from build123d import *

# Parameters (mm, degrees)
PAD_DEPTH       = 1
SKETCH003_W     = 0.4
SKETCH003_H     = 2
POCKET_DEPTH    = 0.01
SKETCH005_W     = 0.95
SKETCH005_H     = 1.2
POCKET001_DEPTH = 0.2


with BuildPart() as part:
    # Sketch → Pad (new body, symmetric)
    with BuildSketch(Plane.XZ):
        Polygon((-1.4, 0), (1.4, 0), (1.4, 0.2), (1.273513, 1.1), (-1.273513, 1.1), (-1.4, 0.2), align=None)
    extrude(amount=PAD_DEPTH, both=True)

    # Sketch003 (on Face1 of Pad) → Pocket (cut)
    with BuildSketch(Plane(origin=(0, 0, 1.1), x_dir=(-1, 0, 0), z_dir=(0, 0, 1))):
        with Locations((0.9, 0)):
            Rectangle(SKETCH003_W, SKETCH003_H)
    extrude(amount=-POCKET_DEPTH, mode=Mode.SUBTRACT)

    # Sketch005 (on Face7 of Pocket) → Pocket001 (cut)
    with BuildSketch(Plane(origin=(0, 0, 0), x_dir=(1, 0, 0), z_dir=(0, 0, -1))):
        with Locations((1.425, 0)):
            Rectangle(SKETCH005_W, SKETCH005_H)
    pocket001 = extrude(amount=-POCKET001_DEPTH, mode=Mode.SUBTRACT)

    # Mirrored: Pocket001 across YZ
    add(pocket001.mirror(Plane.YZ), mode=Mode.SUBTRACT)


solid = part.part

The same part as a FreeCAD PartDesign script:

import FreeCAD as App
import Part
import Sketcher
Q = App.Units.Quantity


def add_polygon(sketch, points):
    """Adds a closed chain of lines whose ends are joined by coincident constraints."""
    first, n = sketch.GeometryCount, len(points)
    for a, b in zip(points, points[1:] + points[:1]):
        sketch.addGeometry(Part.LineSegment(App.Vector(*a, 0), App.Vector(*b, 0)), False)
    for i in range(n):
        sketch.addConstraint(Sketcher.Constraint("Coincident", first + i, 2, first + (i + 1) % n, 1))

doc = App.newDocument("Part")
params = doc.addObject("Spreadsheet::Sheet", "Params")
for row, (alias, value) in enumerate([
    ("sketch1_width", "2.8 mm"),
    ("sketch1_height", "0.2 mm"),
    ("pad1_length", "2 mm"),
    ("sketch2_height", "2 mm"),
    ("sketch2_width", "0.4 mm"),
    ("pocket1_length", "0.01 mm"),
    ("sketch3_height", "1.2 mm"),
    ("sketch3_width", "0.95 mm"),
    ("pocket2_length", "0.2 mm"),
], start=1):
    params.set(f"A{row}", alias)
    params.set(f"B{row}", "=" + value)
    params.setAlias(f"B{row}", alias)

body = doc.addObject("PartDesign::Body", "Body")

# Sketch on XZ plane
sketch1 = doc.addObject("Sketcher::SketchObject", "Sketch")
body.addObject(sketch1)
sketch1.AttachmentSupport = (doc.XZ_Plane, [""])
sketch1.MapMode = "FlatFace"
add_polygon(sketch1, [(-1.4, 0), (1.4, 0), (1.4, 0.2), (1.27, 1.1), (-1.27, 1.1), (-1.4, 0.2)])  # lines 0-5
sketch1.addConstraint([
    Sketcher.Constraint("Horizontal", 0),
    Sketcher.Constraint("Vertical", 1),
    Sketcher.Constraint("Horizontal", 3),
    Sketcher.Constraint("Vertical", 5),
    Sketcher.Constraint("Symmetric", 0, 2, 5, 2, -1, 1),
    Sketcher.Constraint("Horizontal", 1, 2, 4, 2),
    Sketcher.Constraint("Equal", 2, 4),
    Sketcher.Constraint("Angle", 2, Q("98.000016 deg")),
    Sketcher.Constraint("DistanceX", 0, 1, 0, 2, 2.8),
    Sketcher.Constraint("DistanceY", 1, 1, 1, 2, 0.2),
    Sketcher.Constraint("DistanceY", -1, 1, 2, 2, 1.1),
])
sketch1.setExpression("Constraints[14]", "Params.sketch1_width")
sketch1.setExpression("Constraints[15]", "Params.sketch1_height")
pad1 = doc.addObject("PartDesign::Pad", "Pad")
body.addObject(pad1)
pad1.Profile = sketch1
pad1.setExpression("Length", "Params.pad1_length")
pad1.Midplane = True

# Sketch on XY plane
sketch2 = doc.addObject("Sketcher::SketchObject", "Sketch001")
body.addObject(sketch2)
sketch2.AttachmentSupport = (doc.XY_Plane, [""])
sketch2.MapMode = "FlatFace"
sketch2.AttachmentOffset = App.Placement(App.Vector(0, 0, 1.1), App.Rotation())
add_polygon(sketch2, [(-0.7, -1), (-0.7, 1), (-1.1, 1), (-1.1, -1)])  # lines 0-3
sketch2.addConstraint([
    Sketcher.Constraint("Vertical", 0),
    Sketcher.Constraint("Horizontal", 1),
    Sketcher.Constraint("Vertical", 2),
    Sketcher.Constraint("Horizontal", 3),
    Sketcher.Constraint("DistanceY", 0, 1, 0, 2, 2.0),
    Sketcher.Constraint("DistanceX", 1, 2, 1, 1, 0.4),
    Sketcher.Constraint("DistanceY", -1, 1, 0, 2, 1.0),
    Sketcher.Constraint("DistanceX", 0, 2, -1, 1, 0.7),
])
sketch2.setExpression("Constraints[8]", "Params.sketch2_height")
sketch2.setExpression("Constraints[9]", "Params.sketch2_width")
pocket1 = doc.addObject("PartDesign::Pocket", "Pocket")
body.addObject(pocket1)
pocket1.Profile = sketch2
pocket1.setExpression("Length", "Params.pocket1_length")

# Sketch on XY plane
sketch3 = doc.addObject("Sketcher::SketchObject", "Sketch002")
body.addObject(sketch3)
sketch3.AttachmentSupport = (doc.XY_Plane, [""])
sketch3.MapMode = "FlatFace"
add_polygon(sketch3, [(0.9, -0.6), (0.9, 0.6), (1.9, 0.6), (1.9, -0.6)])  # lines 0-3
sketch3.addConstraint([
    Sketcher.Constraint("Vertical", 0),
    Sketcher.Constraint("Horizontal", 1),
    Sketcher.Constraint("Vertical", 2),
    Sketcher.Constraint("Horizontal", 3),
    Sketcher.Constraint("DistanceY", 0, 1, 0, 2, 1.2),
    Sketcher.Constraint("DistanceX", 1, 1, 1, 2, 0.95),
    Sketcher.Constraint("DistanceY", -1, 1, 0, 2, 0.6),
    Sketcher.Constraint("DistanceX", -1, 1, 1, 2, 1.9),
])
sketch3.setExpression("Constraints[8]", "Params.sketch3_height")
sketch3.setExpression("Constraints[9]", "Params.sketch3_width")
pocket2 = doc.addObject("PartDesign::Pocket", "Pocket001")
body.addObject(pocket2)
pocket2.Profile = sketch3
pocket2.setExpression("Length", "Params.pocket2_length")
pocket2.Reversed = True
doc.recompute()

mirrored = doc.addObject("PartDesign::Mirrored", "Mirrored")
body.addObject(mirrored)
mirrored.Originals = [pocket2]
mirrored.MirrorPlane = (doc.YZ_Plane, [""])
body.Tip = mirrored

doc.recompute()
